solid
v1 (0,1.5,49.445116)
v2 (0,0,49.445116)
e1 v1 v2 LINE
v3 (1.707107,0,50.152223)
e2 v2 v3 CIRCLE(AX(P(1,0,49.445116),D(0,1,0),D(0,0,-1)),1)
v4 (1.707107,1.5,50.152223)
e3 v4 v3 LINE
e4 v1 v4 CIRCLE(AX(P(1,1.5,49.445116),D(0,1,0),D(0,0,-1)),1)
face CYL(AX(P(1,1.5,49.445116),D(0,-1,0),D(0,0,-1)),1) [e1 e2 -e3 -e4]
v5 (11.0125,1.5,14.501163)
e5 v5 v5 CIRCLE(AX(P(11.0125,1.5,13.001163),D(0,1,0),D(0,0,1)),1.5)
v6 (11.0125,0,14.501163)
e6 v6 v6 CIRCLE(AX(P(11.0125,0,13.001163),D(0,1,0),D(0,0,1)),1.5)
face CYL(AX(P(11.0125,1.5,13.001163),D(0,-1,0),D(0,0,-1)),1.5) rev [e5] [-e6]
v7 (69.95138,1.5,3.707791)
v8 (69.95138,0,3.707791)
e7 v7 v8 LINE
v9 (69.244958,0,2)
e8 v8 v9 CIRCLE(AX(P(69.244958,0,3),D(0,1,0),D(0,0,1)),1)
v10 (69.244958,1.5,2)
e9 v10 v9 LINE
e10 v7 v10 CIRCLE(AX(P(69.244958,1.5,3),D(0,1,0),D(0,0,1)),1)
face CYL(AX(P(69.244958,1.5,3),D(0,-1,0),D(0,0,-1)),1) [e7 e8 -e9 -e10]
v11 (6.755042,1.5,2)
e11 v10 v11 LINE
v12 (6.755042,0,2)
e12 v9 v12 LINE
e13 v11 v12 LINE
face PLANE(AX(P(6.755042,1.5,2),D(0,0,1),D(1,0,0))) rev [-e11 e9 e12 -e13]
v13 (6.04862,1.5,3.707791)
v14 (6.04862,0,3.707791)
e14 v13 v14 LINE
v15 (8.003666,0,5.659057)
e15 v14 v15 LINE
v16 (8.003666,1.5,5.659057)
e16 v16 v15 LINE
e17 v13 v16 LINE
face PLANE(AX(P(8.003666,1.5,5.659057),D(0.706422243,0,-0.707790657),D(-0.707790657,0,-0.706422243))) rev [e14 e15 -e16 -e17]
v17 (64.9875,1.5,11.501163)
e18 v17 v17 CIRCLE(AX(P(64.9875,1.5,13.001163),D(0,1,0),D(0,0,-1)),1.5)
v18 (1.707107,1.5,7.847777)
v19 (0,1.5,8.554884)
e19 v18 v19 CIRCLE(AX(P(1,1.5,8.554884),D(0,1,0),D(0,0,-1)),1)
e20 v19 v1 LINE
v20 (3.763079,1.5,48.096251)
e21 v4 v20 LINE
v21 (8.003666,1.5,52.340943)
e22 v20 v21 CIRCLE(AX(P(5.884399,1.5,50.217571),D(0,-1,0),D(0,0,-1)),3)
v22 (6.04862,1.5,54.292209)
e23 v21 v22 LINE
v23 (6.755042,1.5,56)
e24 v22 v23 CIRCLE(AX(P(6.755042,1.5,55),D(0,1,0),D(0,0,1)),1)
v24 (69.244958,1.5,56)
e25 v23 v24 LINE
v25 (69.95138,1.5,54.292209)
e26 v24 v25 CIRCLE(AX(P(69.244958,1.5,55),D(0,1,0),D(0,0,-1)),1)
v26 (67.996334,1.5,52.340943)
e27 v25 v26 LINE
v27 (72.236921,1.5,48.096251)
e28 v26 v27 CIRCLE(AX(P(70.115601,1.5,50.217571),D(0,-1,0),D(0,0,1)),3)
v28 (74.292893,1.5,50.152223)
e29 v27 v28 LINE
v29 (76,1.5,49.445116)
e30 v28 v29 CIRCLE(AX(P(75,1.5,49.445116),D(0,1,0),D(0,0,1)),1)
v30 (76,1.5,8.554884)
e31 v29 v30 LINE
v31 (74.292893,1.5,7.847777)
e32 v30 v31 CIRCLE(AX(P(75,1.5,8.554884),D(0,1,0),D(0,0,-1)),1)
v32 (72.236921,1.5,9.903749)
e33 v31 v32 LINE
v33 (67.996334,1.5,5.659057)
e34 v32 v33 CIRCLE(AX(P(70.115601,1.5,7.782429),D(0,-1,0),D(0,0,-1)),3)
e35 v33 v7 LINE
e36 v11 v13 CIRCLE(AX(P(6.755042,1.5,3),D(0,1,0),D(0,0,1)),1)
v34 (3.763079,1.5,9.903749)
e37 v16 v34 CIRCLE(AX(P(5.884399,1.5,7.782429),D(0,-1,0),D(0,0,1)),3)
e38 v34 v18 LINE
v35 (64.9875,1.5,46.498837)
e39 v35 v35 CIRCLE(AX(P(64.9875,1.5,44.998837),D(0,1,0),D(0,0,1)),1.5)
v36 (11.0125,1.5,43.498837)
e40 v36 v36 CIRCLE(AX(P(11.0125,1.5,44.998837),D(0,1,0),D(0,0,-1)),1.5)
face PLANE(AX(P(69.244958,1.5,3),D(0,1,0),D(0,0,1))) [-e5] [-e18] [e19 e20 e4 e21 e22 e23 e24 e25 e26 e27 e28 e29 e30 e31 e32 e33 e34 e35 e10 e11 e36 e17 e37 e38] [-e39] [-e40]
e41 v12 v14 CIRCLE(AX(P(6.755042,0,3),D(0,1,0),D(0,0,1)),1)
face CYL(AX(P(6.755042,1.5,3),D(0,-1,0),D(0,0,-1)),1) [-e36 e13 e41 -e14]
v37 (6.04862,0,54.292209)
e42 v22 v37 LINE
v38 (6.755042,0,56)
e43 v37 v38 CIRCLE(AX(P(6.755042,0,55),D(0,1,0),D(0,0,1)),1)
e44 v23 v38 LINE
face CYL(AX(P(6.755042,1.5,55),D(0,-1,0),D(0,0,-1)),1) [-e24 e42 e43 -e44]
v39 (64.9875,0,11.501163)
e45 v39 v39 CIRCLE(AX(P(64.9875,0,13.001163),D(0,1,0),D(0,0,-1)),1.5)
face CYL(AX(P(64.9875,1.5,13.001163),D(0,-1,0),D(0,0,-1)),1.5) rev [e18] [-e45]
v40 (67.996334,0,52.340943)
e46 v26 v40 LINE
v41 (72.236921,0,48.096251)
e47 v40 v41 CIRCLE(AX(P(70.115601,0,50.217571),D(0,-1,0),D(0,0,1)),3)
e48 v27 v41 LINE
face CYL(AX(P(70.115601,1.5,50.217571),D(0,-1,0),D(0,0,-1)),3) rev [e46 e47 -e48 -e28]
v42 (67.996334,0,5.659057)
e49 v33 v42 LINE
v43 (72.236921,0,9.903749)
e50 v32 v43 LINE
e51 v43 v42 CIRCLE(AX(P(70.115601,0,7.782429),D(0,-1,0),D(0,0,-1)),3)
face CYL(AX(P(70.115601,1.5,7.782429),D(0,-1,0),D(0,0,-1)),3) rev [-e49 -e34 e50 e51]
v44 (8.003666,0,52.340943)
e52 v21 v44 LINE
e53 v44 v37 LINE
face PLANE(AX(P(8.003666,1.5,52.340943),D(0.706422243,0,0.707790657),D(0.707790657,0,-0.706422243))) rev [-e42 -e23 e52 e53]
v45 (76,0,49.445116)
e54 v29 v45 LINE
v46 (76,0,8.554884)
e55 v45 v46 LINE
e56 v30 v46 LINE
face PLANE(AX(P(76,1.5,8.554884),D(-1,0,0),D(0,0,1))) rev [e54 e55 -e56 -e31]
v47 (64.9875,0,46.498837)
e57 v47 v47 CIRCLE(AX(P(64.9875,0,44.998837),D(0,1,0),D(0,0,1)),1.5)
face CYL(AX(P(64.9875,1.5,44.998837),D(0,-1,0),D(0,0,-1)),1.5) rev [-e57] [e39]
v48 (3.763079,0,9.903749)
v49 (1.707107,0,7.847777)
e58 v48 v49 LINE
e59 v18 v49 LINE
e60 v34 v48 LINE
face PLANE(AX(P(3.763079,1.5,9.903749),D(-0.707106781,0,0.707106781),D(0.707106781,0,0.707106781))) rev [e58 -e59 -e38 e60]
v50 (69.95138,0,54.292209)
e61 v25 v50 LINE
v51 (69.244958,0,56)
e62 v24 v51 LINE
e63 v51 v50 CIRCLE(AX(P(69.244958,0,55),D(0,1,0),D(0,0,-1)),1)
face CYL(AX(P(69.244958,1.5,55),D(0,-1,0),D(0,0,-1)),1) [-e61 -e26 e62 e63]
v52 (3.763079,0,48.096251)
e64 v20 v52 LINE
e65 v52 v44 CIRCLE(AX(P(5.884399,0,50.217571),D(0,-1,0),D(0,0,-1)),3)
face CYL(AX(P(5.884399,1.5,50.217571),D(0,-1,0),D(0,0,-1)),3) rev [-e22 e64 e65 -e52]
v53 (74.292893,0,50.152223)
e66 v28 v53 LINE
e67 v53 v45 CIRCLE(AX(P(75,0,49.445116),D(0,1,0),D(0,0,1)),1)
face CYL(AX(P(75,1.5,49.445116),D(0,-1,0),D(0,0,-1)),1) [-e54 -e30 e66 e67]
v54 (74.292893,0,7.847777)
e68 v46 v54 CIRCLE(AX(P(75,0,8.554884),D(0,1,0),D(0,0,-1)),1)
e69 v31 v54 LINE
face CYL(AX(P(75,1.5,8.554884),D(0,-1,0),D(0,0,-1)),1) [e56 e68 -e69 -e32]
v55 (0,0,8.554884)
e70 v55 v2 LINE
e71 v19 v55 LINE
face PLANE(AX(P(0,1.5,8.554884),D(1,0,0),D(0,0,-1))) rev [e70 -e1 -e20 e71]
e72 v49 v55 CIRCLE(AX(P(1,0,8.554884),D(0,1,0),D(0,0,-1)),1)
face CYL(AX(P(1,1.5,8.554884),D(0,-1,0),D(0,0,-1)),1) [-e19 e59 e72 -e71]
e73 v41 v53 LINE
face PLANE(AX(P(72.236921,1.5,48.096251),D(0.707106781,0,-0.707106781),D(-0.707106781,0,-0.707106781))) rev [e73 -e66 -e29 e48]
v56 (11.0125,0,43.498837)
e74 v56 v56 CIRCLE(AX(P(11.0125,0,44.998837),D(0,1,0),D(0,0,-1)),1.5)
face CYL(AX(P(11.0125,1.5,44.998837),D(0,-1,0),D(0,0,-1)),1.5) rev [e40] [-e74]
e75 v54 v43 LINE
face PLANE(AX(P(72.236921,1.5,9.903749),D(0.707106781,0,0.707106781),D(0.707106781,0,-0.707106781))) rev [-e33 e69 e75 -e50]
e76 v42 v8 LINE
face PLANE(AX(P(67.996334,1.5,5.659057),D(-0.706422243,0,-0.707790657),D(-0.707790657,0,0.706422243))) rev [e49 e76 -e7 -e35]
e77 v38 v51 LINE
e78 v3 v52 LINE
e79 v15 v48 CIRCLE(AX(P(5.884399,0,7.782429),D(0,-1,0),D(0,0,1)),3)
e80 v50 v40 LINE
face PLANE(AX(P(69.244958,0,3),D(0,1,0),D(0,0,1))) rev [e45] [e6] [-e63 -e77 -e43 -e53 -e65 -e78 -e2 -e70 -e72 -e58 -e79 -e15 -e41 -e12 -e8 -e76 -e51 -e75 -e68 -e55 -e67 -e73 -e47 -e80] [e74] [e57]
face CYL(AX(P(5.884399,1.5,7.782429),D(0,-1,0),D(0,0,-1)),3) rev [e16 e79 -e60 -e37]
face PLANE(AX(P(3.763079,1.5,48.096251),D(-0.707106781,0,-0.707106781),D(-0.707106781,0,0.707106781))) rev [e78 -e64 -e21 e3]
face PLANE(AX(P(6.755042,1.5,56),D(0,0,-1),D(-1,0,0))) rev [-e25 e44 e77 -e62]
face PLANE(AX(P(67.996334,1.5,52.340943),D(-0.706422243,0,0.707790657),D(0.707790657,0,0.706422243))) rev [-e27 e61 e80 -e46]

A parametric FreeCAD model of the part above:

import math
import FreeCAD as App
import Part
import Sketcher

V = App.Vector
Q = App.Units.Quantity

doc = App.newDocument("Part")
body = doc.addObject("PartDesign::Body", "Body")

# Sketch on XZ plane
sketch1 = doc.addObject("Sketcher::SketchObject", "Sketch")
body.addObject(sketch1)
sketch1.AttachmentSupport = (doc.XZ_Plane, [""])
sketch1.MapMode = "FlatFace"
sketch1.addGeometry(Part.LineSegment(V(69.2, 2, 0), V(6.8, 2, 0)), False)
sketch1.addGeometry(Part.ArcOfCircle(Part.Circle(V(6.8, 3, 0), V(0, 0, 1), 1), math.radians(135), math.radians(270)), False)
sketch1.addGeometry(Part.LineSegment(V(6, 3.7, 0), V(8, 5.7, 0)), False)
sketch1.addGeometry(Part.ArcOfCircle(Part.Circle(V(5.9, 7.8, 0), V(0, 0, 1), 3), math.radians(-45), math.radians(135)), False)
sketch1.addGeometry(Part.LineSegment(V(3.8, 9.9, 0), V(1.7, 7.8, 0)), False)
sketch1.addGeometry(Part.ArcOfCircle(Part.Circle(V(1, 8.6, 0), V(0, 0, 1), 1), math.radians(180), math.radians(315)), False)
sketch1.addGeometry(Part.LineSegment(V(0, 8.6, 0), V(0, 49.4, 0)), False)
sketch1.addGeometry(Part.ArcOfCircle(Part.Circle(V(1, 49.4, 0), V(0, 0, 1), 1), math.radians(45), math.radians(180)), False)
sketch1.addGeometry(Part.LineSegment(V(1.7, 50.2, 0), V(3.8, 48.1, 0)), False)
sketch1.addGeometry(Part.ArcOfCircle(Part.Circle(V(5.9, 50.2, 0), V(0, 0, 1), 3), math.radians(-135), math.radians(45)), False)
sketch1.addGeometry(Part.LineSegment(V(8, 52.3, 0), V(6, 54.3, 0)), False)
sketch1.addGeometry(Part.ArcOfCircle(Part.Circle(V(6.8, 55, 0), V(0, 0, 1), 1), math.radians(90), math.radians(225)), False)
sketch1.addGeometry(Part.LineSegment(V(6.8, 56, 0), V(69.2, 56, 0)), False)
sketch1.addGeometry(Part.ArcOfCircle(Part.Circle(V(69.2, 55, 0), V(0, 0, 1), 1), math.radians(-45), math.radians(90)), False)
sketch1.addGeometry(Part.LineSegment(V(70, 54.3, 0), V(68, 52.3, 0)), False)
sketch1.addGeometry(Part.ArcOfCircle(Part.Circle(V(70.1, 50.2, 0), V(0, 0, 1), 3), math.radians(135), math.radians(315)), False)
sketch1.addGeometry(Part.LineSegment(V(72.2, 48.1, 0), V(74.3, 50.2, 0)), False)
sketch1.addGeometry(Part.ArcOfCircle(Part.Circle(V(75, 49.4, 0), V(0, 0, 1), 1), math.radians(0), math.radians(135)), False)
sketch1.addGeometry(Part.LineSegment(V(76, 49.4, 0), V(76, 8.6, 0)), False)
sketch1.addGeometry(Part.ArcOfCircle(Part.Circle(V(75, 8.6, 0), V(0, 0, 1), 1), math.radians(-135), math.radians(0)), False)
sketch1.addGeometry(Part.LineSegment(V(74.3, 7.8, 0), V(72.2, 9.9, 0)), False)
sketch1.addGeometry(Part.ArcOfCircle(Part.Circle(V(70.1, 7.8, 0), V(0, 0, 1), 3), math.radians(45), math.radians(225)), False)
sketch1.addGeometry(Part.LineSegment(V(68, 5.7, 0), V(70, 3.7, 0)), False)
sketch1.addGeometry(Part.ArcOfCircle(Part.Circle(V(69.2, 3, 0), V(0, 0, 1), 1), math.radians(-90), math.radians(45)), False)
sketch1.addGeometry(Part.Circle(V(65, 45, 0), V(0, 0, 1), 1.5), False)
sketch1.addGeometry(Part.Circle(V(11, 45, 0), V(0, 0, 1), 1.5), False)
sketch1.addGeometry(Part.Circle(V(65, 13, 0), V(0, 0, 1), 1.5), False)
sketch1.addGeometry(Part.Circle(V(11, 13, 0), V(0, 0, 1), 1.5), False)
sketch1.addConstraint(Sketcher.Constraint("Tangent", 0, 2, 1, 2))
sketch1.addConstraint(Sketcher.Constraint("Tangent", 1, 1, 2, 1))
sketch1.addConstraint(Sketcher.Constraint("Tangent", 2, 2, 3, 1))
sketch1.addConstraint(Sketcher.Constraint("Tangent", 3, 2, 4, 1))
sketch1.addConstraint(Sketcher.Constraint("Tangent", 4, 2, 5, 2))
sketch1.addConstraint(Sketcher.Constraint("Tangent", 5, 1, 6, 1))
sketch1.addConstraint(Sketcher.Constraint("Tangent", 6, 2, 7, 2))
sketch1.addConstraint(Sketcher.Constraint("Tangent", 7, 1, 8, 1))
sketch1.addConstraint(Sketcher.Constraint("Tangent", 8, 2, 9, 1))
sketch1.addConstraint(Sketcher.Constraint("Tangent", 9, 2, 10, 1))
sketch1.addConstraint(Sketcher.Constraint("Tangent", 10, 2, 11, 2))
sketch1.addConstraint(Sketcher.Constraint("Tangent", 11, 1, 12, 1))
sketch1.addConstraint(Sketcher.Constraint("Tangent", 12, 2, 13, 2))
sketch1.addConstraint(Sketcher.Constraint("Tangent", 13, 1, 14, 1))
sketch1.addConstraint(Sketcher.Constraint("Tangent", 14, 2, 15, 1))
sketch1.addConstraint(Sketcher.Constraint("Tangent", 15, 2, 16, 1))
sketch1.addConstraint(Sketcher.Constraint("Tangent", 16, 2, 17, 2))
sketch1.addConstraint(Sketcher.Constraint("Tangent", 17, 1, 18, 1))
sketch1.addConstraint(Sketcher.Constraint("Tangent", 18, 2, 19, 2))
sketch1.addConstraint(Sketcher.Constraint("Tangent", 19, 1, 20, 1))
sketch1.addConstraint(Sketcher.Constraint("Tangent", 20, 2, 21, 1))
sketch1.addConstraint(Sketcher.Constraint("Tangent", 21, 2, 22, 1))
sketch1.addConstraint(Sketcher.Constraint("Tangent", 22, 2, 23, 2))
sketch1.addConstraint(Sketcher.Constraint("Tangent", 23, 1, 0, 1))
sketch1.addConstraint(Sketcher.Constraint("Horizontal", 0))
sketch1.addConstraint(Sketcher.Constraint("Vertical", 6))
sketch1.addConstraint(Sketcher.Constraint("Horizontal", 12))
sketch1.addConstraint(Sketcher.Constraint("Vertical", 18))
sketch1.addConstraint(Sketcher.Constraint("Equal", 1, 5))
sketch1.addConstraint(Sketcher.Constraint("Equal", 5, 7))
sketch1.addConstraint(Sketcher.Constraint("Equal", 3, 9))
sketch1.addConstraint(Sketcher.Constraint("Equal", 7, 11))
sketch1.addConstraint(Sketcher.Constraint("Equal", 11, 13))
sketch1.addConstraint(Sketcher.Constraint("Equal", 9, 15))
sketch1.addConstraint(Sketcher.Constraint("Equal", 13, 17))
sketch1.addConstraint(Sketcher.Constraint("Equal", 17, 19))
sketch1.addConstraint(Sketcher.Constraint("Equal", 15, 21))
sketch1.addConstraint(Sketcher.Constraint("Equal", 19, 23))
sketch1.addConstraint(Sketcher.Constraint("Equal", 24, 25))
sketch1.addConstraint(Sketcher.Constraint("Equal", 25, 26))
sketch1.addConstraint(Sketcher.Constraint("Equal", 26, 27))
sketch1.addConstraint(Sketcher.Constraint("PointOnObject", 5, 1, -2))
sketch1.addConstraint(Sketcher.Constraint("Perpendicular", 4, 8))
sketch1.addConstraint(Sketcher.Constraint("Parallel", 2, 14))
sketch1.addConstraint(Sketcher.Constraint("Perpendicular", 8, 16))
sketch1.addConstraint(Sketcher.Constraint("Perpendicular", 16, 20))
sketch1.addConstraint(Sketcher.Constraint("Parallel", 10, 22))
sketch1.addConstraint(Sketcher.Constraint("Horizontal", 9, 3, 15, 3))
sketch1.addConstraint(Sketcher.Constraint("Horizontal", 7, 3, 17, 3))
sketch1.addConstraint(Sketcher.Constraint("Horizontal", 5, 3, 19, 3))
sketch1.addConstraint(Sketcher.Constraint("Horizontal", 3, 3, 21, 3))
sketch1.addConstraint(Sketcher.Constraint("Horizontal", 24, 3, 25, 3))
sketch1.addConstraint(Sketcher.Constraint("Horizontal", 26, 3, 27, 3))
sketch1.addConstraint(Sketcher.Constraint("Horizontal", 10, 2, 13, 1))
sketch1.addConstraint(Sketcher.Constraint("Horizontal", 8, 2, 15, 2))
sketch1.addConstraint(Sketcher.Constraint("Vertical", 3, 3, 9, 3))
sketch1.addConstraint(Sketcher.Constraint("Vertical", 1, 3, 11, 3))
sketch1.addConstraint(Sketcher.Constraint("Vertical", 24, 3, 26, 3))
sketch1.addConstraint(Sketcher.Constraint("Vertical", 25, 3, 27, 3))
sketch1.addConstraint(Sketcher.Constraint("Diameter", 24, Q("3 mm")))
sketch1.addConstraint(Sketcher.Constraint("Radius", 1, Q("1 mm")))
sketch1.addConstraint(Sketcher.Constraint("Radius", 3, Q("3 mm")))
sketch1.addConstraint(Sketcher.Constraint("DistanceY", -1, 1, 1, 3, Q("3 mm")))
sketch1.addConstraint(Sketcher.Constraint("DistanceY", -1, 1, 11, 3, Q("55 mm")))
sketch1.addConstraint(Sketcher.Constraint("DistanceX", -1, 1, 17, 3, Q("75 mm")))
sketch1.addConstraint(Sketcher.Constraint("DistanceX", -1, 1, 3, 3, Q("5.884399 mm")))
sketch1.addConstraint(Sketcher.Constraint("DistanceX", -1, 1, 24, 3, Q("64.9875 mm")))
sketch1.addConstraint(Sketcher.Constraint("DistanceX", -1, 1, 25, 3, Q("11.0125 mm")))
sketch1.addConstraint(Sketcher.Constraint("Distance", 2, Q("2.762181 mm")))
sketch1.addConstraint(Sketcher.Constraint("DistanceX", 0, 2, 0, 1, Q("62.489915 mm")))
sketch1.addConstraint(Sketcher.Constraint("DistanceY", 24, 3, 17, 3, Q("4.44628 mm")))
sketch1.addConstraint(Sketcher.Constraint("DistanceY", 19, 3, 26, 3, Q("4.44628 mm")))
pad1 = doc.addObject("PartDesign::Pad", "Pad")
body.addObject(pad1)
pad1.Profile = sketch1
pad1.Length = 1.5
pad1.Reversed = True

doc.recompute()
